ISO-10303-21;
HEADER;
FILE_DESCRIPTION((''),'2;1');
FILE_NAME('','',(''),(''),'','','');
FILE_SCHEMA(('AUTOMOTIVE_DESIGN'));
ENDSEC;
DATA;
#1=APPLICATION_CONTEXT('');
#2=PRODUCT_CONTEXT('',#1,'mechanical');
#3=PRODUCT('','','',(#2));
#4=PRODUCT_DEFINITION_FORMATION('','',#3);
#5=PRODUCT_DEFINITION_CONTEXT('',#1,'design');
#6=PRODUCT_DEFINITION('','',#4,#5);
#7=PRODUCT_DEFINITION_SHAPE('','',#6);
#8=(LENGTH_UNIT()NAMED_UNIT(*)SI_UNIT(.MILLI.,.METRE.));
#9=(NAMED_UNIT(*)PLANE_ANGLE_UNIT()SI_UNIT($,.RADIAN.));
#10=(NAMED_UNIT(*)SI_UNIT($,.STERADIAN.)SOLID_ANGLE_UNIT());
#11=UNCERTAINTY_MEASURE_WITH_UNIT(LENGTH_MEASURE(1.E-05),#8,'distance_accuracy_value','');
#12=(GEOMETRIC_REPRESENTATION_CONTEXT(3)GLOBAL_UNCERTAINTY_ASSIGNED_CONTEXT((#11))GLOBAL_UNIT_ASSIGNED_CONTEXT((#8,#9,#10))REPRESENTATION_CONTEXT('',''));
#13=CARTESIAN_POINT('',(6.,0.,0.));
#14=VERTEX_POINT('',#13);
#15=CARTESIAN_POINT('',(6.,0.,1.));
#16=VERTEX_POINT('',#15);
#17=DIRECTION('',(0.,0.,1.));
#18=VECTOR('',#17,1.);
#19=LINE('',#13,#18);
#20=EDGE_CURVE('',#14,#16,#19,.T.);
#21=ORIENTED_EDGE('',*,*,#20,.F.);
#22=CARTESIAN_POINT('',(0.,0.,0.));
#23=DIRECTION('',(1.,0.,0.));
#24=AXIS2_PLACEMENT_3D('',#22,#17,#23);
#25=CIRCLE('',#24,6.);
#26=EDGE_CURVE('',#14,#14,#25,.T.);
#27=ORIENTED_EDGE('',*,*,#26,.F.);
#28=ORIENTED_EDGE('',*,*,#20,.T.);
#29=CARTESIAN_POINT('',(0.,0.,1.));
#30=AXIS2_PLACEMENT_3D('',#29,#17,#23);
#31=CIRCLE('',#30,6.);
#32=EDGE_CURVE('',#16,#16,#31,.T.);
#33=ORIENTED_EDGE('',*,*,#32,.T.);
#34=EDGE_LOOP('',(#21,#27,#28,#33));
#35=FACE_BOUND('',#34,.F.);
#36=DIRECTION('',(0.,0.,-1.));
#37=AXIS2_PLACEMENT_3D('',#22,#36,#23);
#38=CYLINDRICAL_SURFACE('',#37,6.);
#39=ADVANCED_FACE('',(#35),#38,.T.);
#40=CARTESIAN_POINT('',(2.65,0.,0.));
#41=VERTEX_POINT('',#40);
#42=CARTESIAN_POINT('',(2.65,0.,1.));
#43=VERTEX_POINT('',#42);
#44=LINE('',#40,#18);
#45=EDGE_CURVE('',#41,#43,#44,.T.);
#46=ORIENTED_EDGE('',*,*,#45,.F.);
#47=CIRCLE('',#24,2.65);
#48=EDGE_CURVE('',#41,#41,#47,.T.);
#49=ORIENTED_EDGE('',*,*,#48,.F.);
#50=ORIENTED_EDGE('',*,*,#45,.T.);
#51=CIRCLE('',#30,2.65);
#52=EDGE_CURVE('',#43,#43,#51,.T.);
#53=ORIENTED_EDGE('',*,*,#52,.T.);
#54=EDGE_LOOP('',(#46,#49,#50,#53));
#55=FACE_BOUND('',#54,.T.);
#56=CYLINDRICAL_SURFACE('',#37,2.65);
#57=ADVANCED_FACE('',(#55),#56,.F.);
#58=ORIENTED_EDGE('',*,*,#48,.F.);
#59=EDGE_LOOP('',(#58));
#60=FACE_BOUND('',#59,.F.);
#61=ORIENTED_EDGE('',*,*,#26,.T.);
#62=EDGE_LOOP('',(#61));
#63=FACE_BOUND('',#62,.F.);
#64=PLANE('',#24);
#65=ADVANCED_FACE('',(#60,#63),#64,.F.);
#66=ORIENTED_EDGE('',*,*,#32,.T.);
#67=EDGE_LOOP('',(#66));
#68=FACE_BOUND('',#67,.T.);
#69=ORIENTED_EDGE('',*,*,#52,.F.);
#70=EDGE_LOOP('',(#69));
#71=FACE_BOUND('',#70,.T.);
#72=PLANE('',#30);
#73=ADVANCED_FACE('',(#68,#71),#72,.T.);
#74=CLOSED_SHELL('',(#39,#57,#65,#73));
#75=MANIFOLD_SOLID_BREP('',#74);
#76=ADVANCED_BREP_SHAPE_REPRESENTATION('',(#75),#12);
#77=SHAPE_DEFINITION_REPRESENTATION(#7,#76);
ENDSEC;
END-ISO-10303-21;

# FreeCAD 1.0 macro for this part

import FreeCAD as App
import Part
import Sketcher
from FreeCAD import Vector

doc = App.newDocument("Part")
body = doc.addObject("PartDesign::Body", "Body")

sketch1 = doc.addObject("Sketcher::SketchObject", "Sketch")
body.addObject(sketch1)
sketch1.AttachmentSupport = (doc.XY_Plane, [""])
sketch1.MapMode = "FlatFace"
sketch1.addGeometry([
    Part.Circle(Vector(0, 0, 0), Vector(0, 0, 1), 6),
    Part.Circle(Vector(0, 0, 0), Vector(0, 0, 1), 2.6),
], False)
sketch1.addConstraint([
    Sketcher.Constraint("Coincident", 0, 3, -1, 1),
    Sketcher.Constraint("Coincident", 1, 3, -1, 1),
    Sketcher.Constraint("Diameter", 0, 12.0),
    Sketcher.Constraint("Diameter", 1, 5.3),
])
pad1 = doc.addObject("PartDesign::Pad", "Pad")
body.addObject(pad1)
pad1.Profile = sketch1
pad1.Length = 1

doc.recompute()
